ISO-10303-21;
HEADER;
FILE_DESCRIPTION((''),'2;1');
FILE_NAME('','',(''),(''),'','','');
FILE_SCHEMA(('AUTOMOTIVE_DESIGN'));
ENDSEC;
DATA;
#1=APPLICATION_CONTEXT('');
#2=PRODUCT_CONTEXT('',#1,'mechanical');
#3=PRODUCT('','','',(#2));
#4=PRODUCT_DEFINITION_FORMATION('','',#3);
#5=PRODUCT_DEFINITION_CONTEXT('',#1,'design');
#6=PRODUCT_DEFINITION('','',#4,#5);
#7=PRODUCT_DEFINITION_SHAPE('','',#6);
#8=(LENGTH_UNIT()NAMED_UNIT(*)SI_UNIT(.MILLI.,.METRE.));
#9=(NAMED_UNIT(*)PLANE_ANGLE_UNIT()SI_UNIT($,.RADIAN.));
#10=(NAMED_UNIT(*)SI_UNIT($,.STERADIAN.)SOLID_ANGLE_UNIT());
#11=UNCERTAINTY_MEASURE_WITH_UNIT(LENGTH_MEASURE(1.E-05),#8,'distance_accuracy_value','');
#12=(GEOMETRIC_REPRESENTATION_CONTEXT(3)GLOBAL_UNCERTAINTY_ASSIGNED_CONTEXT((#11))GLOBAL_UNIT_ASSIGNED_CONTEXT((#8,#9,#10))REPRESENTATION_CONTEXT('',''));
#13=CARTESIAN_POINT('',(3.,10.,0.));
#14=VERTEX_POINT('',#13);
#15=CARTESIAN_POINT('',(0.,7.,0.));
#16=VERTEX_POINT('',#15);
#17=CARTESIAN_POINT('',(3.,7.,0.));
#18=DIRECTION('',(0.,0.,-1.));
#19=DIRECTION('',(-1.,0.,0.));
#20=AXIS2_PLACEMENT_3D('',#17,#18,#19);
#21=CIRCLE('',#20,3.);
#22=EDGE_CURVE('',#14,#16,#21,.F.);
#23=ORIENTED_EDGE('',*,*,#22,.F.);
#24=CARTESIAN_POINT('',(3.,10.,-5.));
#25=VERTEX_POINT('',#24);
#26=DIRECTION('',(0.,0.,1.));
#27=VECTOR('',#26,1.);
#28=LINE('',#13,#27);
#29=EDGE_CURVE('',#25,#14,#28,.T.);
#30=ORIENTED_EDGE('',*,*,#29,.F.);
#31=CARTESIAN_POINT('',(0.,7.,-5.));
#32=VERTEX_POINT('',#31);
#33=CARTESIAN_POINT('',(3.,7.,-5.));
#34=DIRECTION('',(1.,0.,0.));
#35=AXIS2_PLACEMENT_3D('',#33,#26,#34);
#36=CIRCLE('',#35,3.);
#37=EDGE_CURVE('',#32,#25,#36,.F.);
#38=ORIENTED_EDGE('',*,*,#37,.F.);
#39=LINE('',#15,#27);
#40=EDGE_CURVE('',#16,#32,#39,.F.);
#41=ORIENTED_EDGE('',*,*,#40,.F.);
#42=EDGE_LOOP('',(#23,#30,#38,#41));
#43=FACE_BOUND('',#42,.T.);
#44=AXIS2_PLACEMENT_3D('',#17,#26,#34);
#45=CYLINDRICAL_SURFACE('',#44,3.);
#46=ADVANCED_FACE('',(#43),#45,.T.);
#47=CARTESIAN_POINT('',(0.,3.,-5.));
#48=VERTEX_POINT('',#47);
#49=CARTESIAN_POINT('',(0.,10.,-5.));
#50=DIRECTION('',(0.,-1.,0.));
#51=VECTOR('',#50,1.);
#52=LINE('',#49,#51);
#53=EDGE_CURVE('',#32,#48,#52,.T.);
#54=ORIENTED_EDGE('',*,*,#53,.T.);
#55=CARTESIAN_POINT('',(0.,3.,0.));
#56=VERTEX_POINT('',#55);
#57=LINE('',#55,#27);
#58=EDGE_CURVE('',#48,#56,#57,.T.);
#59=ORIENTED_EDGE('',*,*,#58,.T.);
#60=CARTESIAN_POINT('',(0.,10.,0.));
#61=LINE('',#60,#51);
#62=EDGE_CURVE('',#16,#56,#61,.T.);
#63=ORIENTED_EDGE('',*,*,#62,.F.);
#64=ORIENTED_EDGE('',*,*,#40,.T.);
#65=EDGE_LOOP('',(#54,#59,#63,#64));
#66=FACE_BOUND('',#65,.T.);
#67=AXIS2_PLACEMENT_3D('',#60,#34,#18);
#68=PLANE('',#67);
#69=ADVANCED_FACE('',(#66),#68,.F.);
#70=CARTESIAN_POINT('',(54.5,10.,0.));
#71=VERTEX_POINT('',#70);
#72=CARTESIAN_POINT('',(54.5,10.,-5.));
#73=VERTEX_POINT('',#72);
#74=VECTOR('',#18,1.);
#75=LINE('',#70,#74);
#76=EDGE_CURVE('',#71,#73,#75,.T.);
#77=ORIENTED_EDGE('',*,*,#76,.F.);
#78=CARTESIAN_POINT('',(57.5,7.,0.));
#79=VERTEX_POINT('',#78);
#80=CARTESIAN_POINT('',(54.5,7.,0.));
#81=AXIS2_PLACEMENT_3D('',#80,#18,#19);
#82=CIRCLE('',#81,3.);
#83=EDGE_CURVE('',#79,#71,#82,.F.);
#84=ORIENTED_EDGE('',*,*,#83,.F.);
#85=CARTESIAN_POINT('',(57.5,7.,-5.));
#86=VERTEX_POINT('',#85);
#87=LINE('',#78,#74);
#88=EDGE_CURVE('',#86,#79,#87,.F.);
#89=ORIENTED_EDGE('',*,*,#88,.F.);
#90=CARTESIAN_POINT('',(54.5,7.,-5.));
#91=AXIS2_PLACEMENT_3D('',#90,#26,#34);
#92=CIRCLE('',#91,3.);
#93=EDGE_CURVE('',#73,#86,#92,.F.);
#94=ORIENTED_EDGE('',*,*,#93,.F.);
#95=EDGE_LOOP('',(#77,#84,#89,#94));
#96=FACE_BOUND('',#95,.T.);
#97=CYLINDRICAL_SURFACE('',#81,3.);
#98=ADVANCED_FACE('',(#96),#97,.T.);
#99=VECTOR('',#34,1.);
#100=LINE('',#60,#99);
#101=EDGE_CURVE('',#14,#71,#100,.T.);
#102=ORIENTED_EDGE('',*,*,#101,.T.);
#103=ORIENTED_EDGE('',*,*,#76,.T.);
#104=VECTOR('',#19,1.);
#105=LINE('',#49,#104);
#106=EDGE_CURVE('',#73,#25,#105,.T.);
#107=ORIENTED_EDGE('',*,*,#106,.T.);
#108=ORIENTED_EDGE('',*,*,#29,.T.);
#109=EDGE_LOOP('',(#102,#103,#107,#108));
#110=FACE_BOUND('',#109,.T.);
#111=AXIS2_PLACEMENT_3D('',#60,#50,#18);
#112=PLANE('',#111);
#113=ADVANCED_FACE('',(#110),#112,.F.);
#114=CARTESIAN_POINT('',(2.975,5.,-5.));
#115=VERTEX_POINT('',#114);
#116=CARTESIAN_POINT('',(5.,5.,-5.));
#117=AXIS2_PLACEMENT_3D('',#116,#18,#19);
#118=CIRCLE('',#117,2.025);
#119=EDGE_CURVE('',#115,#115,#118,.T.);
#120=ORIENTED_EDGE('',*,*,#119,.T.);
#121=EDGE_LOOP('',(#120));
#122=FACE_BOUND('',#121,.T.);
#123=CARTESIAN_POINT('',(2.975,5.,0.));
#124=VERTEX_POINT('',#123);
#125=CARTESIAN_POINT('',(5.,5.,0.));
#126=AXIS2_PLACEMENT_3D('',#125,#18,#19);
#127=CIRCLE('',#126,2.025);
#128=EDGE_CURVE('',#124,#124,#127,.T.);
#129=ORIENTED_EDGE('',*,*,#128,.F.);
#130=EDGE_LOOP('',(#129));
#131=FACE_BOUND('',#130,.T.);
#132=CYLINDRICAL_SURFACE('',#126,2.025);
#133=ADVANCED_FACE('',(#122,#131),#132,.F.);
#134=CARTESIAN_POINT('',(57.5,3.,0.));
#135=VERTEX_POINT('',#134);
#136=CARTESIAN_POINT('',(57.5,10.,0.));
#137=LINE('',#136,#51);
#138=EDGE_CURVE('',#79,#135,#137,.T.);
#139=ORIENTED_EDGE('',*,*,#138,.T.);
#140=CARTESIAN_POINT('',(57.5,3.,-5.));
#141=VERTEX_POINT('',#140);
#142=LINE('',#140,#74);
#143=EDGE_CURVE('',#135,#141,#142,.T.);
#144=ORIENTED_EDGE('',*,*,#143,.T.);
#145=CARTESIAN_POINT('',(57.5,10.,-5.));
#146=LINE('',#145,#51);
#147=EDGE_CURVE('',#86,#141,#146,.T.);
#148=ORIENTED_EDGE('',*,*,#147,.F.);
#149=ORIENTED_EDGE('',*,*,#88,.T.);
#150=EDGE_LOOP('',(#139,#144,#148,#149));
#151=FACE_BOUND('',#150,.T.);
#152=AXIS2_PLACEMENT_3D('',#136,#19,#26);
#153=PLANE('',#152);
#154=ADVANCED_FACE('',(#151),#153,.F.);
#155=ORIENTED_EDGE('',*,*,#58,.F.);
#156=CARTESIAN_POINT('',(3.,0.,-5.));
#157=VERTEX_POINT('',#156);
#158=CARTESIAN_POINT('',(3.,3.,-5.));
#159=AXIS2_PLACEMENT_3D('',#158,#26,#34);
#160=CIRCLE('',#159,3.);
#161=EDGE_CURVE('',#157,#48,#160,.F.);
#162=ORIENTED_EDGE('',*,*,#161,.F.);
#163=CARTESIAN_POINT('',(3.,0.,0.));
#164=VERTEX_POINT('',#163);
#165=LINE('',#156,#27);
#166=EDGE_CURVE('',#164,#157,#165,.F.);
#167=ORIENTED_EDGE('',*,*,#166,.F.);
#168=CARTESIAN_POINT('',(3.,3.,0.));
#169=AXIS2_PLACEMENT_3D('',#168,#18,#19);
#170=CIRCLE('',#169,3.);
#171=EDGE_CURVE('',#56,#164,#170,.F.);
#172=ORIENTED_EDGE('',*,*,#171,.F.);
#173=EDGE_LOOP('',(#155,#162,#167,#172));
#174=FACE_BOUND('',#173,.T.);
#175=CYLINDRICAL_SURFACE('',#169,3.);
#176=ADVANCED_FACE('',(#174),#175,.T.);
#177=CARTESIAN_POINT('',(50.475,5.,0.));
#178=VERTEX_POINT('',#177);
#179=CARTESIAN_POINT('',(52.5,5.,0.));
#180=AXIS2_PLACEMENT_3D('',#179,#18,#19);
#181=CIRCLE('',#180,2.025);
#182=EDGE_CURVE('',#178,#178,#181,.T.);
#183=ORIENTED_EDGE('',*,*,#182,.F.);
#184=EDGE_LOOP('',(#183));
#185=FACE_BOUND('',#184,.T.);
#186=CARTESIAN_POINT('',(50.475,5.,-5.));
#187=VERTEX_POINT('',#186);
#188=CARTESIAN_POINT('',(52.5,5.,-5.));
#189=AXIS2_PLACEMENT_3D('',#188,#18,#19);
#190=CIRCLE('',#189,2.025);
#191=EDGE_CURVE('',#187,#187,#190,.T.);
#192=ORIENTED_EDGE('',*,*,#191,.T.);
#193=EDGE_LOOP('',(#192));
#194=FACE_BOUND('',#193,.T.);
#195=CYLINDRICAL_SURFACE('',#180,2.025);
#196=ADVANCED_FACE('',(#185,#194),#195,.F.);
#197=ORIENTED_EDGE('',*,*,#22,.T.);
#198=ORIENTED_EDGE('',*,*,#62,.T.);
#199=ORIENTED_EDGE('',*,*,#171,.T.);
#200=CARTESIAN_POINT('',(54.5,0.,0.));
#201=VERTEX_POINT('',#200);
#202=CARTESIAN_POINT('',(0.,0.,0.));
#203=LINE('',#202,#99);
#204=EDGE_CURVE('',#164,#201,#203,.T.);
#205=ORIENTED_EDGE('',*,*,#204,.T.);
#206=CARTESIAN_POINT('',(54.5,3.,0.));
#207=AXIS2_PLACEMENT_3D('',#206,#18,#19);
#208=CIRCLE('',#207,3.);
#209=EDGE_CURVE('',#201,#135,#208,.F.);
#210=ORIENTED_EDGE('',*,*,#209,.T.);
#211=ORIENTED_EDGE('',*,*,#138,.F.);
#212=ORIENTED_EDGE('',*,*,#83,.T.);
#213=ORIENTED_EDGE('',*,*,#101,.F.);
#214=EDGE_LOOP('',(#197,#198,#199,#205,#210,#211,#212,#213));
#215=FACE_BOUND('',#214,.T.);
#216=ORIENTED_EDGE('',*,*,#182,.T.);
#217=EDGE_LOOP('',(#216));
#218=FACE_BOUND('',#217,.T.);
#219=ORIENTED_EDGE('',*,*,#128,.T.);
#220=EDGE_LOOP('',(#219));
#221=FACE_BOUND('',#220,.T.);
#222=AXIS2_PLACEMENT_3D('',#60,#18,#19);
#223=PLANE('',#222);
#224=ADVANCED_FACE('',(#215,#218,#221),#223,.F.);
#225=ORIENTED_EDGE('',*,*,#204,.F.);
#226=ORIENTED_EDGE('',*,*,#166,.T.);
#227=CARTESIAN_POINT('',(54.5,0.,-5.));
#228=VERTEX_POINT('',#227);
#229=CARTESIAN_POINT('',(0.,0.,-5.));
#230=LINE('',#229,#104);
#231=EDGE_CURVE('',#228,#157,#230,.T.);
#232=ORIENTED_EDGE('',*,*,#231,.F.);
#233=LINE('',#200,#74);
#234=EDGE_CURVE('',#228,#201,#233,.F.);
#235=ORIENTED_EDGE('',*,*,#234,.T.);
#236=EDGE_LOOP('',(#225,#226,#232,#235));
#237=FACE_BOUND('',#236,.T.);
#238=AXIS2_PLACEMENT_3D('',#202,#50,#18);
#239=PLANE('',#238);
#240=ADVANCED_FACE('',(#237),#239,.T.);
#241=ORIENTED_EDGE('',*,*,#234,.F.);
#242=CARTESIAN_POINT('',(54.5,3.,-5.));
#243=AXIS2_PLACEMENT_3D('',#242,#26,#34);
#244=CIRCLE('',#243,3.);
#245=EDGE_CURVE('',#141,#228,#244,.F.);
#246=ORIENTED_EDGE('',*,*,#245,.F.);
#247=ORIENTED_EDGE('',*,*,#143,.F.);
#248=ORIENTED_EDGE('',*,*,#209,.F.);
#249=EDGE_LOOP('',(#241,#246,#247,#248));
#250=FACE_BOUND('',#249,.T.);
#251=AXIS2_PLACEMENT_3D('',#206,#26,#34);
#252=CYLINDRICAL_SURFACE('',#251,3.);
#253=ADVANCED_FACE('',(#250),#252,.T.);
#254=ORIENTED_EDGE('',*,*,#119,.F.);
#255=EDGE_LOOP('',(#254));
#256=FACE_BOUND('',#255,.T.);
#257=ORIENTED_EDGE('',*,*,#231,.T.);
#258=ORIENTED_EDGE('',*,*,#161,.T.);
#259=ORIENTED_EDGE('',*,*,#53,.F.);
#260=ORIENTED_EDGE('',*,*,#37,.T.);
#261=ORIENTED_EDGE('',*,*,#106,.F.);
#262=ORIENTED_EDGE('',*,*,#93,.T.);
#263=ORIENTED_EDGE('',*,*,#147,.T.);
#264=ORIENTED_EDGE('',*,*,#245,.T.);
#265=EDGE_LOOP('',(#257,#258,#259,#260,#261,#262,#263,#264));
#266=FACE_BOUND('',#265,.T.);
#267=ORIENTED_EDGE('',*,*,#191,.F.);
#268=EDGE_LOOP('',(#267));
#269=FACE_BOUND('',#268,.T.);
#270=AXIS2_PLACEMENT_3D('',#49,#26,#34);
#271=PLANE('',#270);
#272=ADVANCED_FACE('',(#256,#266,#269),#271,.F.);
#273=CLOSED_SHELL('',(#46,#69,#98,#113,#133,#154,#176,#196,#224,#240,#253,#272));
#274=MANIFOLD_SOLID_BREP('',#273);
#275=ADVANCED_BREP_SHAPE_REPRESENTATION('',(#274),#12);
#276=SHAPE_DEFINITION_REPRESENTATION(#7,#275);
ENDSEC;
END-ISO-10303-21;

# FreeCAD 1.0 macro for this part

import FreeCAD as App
import Part
import Sketcher
from FreeCAD import Vector
Q = App.Units.Quantity


def edges_at(feature, points):
    """Names of the edges that pass closest to the given points."""
    edges = feature.Shape.Edges
    near = lambda p: min(range(len(edges)), key=lambda i: edges[i].distToShape(Part.Vertex(*p))[0])
    return sorted({f"Edge{near(p) + 1}" for p in points})

doc = App.newDocument("Part")
body = doc.addObject("PartDesign::Body", "Body")

sketch1 = body.newObject("Sketcher::SketchObject", "Sketch")
sketch1.AttachmentSupport = (doc.getObject("XZ_Plane"), [""])
sketch1.MapMode = "FlatFace"
sketch1.addGeometry([
    Part.LineSegment(Vector(0, -5, 0), Vector(0, 0, 0)),
    Part.LineSegment(Vector(0, 0, 0), Vector(58, 0, 0)),
    Part.LineSegment(Vector(58, 0, 0), Vector(58, -5, 0)),
    Part.LineSegment(Vector(58, -5, 0), Vector(0, -5, 0)),
], False)
sketch1.addConstraint([
    Sketcher.Constraint("Coincident", 0, 2, 1, 1),
    Sketcher.Constraint("Coincident", 1, 2, 2, 1),
    Sketcher.Constraint("Coincident", 2, 2, 3, 1),
    Sketcher.Constraint("Coincident", 3, 2, 0, 1),
    Sketcher.Constraint("Vertical", 0),
    Sketcher.Constraint("Horizontal", 1),
    Sketcher.Constraint("Vertical", 2),
    Sketcher.Constraint("Horizontal", 3),
    Sketcher.Constraint("Coincident", 0, 2, -1, 1),
    Sketcher.Constraint("DistanceY", 0, 1, 0, 2, Q("5 mm")),
    Sketcher.Constraint("DistanceX", 1, 1, 1, 2, Q("57.5 mm")),
])
pad1 = body.newObject("PartDesign::Pad", "Pad")
pad1.Profile = sketch1
pad1.Length = 10
pad1.Reversed = True

sketch2 = body.newObject("Sketcher::SketchObject", "Sketch001")
sketch2.AttachmentSupport = (doc.getObject("XY_Plane"), [""])
sketch2.MapMode = "FlatFace"
sketch2.AttachmentOffset = App.Placement(Vector(0, 0, -5), App.Rotation())
sketch2.addGeometry([
    Part.Circle(Vector(52.5, 5, 0), Vector(0, 0, 1), 2),
    Part.Circle(Vector(5, 5, 0), Vector(0, 0, 1), 2),
], False)
sketch2.addConstraint([
    Sketcher.Constraint("Equal", 0, 1),
    Sketcher.Constraint("Horizontal", 0, 3, 1, 3),
    Sketcher.Constraint("Diameter", 0, Q("4.05 mm")),
    Sketcher.Constraint("DistanceY", -1, 1, 0, 3, Q("5 mm")),
    Sketcher.Constraint("DistanceX", -1, 1, 1, 3, Q("5 mm")),
    Sketcher.Constraint("DistanceX", -1, 1, 0, 3, Q("52.5 mm")),
])
pocket1 = body.newObject("PartDesign::Pocket", "Pocket")
pocket1.Profile = sketch2
pocket1.Type = "ThroughAll"
pocket1.Reversed = True
doc.recompute()

fillet = body.newObject("PartDesign::Fillet", "Fillet")
fillet.Base = (pocket1, edges_at(pocket1, [
    (57.5, 10, -2.5),
    (0, 10, -2.5),
    (57.5, 0, -2.5),
    (0, 0, -2.5),
]))
fillet.Radius = 3

doc.recompute()
